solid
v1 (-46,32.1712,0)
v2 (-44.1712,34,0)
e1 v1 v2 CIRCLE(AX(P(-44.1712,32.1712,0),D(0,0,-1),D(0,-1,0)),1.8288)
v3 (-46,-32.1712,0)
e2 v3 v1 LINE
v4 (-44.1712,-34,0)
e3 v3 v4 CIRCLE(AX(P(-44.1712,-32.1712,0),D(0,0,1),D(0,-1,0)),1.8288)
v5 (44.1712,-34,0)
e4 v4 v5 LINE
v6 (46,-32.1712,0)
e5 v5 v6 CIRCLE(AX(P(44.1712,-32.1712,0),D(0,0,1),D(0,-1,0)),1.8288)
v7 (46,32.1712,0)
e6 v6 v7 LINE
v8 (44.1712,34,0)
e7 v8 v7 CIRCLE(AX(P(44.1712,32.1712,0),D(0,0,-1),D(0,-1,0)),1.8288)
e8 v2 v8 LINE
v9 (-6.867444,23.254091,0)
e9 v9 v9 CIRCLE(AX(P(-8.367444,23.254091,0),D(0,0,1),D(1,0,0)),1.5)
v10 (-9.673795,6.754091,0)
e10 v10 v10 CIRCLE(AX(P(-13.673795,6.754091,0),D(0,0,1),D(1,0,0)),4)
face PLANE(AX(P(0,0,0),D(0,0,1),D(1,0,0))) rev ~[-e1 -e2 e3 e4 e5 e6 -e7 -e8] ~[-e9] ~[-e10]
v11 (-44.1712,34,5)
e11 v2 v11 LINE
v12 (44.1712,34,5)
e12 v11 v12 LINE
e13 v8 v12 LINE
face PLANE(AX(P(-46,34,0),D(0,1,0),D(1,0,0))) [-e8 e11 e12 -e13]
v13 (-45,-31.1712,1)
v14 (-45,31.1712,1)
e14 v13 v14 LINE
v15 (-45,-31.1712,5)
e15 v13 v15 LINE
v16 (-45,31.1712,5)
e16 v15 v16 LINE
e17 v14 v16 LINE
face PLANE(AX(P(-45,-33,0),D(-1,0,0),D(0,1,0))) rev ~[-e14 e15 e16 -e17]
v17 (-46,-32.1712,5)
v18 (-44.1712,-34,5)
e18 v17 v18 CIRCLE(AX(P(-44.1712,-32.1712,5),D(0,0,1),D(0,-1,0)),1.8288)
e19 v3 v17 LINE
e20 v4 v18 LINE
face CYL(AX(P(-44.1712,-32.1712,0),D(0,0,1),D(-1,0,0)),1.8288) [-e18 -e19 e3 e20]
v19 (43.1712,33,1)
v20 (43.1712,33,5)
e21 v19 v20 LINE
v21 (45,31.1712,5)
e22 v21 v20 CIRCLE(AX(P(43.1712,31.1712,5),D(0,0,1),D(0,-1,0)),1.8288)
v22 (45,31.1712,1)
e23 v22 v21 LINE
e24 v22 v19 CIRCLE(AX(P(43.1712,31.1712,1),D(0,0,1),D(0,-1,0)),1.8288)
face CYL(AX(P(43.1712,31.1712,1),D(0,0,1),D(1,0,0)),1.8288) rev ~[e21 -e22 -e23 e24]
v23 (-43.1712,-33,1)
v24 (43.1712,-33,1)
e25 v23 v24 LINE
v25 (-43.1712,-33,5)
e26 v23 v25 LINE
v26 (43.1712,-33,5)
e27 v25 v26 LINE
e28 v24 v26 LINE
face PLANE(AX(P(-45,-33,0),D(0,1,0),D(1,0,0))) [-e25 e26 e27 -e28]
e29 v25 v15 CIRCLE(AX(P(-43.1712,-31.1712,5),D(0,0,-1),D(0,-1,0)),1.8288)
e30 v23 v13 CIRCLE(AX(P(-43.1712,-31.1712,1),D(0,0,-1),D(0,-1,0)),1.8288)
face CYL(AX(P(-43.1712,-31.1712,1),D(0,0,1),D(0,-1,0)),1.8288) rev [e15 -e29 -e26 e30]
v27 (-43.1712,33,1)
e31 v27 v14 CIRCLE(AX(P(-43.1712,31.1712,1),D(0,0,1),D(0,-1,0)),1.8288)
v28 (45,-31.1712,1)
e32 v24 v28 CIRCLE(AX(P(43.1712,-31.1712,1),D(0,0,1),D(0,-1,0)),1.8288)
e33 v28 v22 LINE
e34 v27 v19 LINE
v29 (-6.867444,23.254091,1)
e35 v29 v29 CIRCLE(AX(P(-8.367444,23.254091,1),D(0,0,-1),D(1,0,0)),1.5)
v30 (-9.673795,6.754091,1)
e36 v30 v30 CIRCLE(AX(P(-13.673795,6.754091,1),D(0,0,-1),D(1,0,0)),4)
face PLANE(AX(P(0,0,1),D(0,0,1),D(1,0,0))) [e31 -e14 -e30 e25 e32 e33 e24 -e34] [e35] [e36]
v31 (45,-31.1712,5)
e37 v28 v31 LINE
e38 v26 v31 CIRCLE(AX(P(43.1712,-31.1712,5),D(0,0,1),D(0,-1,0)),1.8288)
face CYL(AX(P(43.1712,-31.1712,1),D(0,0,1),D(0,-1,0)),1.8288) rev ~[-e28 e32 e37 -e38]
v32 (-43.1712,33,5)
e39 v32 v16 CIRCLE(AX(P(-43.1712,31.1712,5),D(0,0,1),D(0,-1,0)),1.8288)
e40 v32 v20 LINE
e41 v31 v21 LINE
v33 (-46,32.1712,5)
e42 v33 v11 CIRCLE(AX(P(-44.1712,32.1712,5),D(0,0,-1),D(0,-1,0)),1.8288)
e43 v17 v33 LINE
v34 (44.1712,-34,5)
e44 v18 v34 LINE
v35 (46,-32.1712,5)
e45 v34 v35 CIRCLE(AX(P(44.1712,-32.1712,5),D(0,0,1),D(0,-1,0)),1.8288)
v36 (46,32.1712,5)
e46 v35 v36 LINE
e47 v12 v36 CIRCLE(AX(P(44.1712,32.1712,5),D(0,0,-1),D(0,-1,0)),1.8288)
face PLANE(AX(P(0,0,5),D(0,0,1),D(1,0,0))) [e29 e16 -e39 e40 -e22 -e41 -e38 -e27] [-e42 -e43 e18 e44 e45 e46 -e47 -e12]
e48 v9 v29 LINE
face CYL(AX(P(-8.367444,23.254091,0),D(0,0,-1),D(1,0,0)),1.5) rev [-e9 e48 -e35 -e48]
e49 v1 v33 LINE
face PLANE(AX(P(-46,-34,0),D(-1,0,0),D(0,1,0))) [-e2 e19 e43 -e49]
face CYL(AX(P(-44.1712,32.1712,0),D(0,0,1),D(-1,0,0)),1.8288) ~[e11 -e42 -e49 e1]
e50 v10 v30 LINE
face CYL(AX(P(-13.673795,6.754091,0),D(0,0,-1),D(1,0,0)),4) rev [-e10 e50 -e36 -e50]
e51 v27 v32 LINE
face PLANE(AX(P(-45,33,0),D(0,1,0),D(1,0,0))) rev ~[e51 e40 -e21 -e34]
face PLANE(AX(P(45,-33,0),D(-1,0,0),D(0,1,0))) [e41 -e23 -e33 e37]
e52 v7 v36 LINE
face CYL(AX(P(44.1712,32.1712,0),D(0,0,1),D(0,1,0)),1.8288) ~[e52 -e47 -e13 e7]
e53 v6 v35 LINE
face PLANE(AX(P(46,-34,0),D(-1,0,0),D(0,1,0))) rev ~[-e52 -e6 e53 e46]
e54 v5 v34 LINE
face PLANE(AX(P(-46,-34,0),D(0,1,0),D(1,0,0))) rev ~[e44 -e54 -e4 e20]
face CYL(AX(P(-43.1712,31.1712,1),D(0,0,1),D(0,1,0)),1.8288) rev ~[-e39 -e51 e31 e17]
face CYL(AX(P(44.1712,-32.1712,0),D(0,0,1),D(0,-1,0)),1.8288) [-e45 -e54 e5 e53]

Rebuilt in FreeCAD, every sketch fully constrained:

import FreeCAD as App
import Part
import Sketcher
from FreeCAD import Vector


def edges_at(feature, points):
    """Names of the edges that pass closest to the given points."""
    edges = feature.Shape.Edges
    near = lambda p: min(range(len(edges)), key=lambda i: edges[i].distToShape(Part.Vertex(*p))[0])
    return sorted({f"Edge{near(p) + 1}" for p in points})

doc = App.newDocument("Part")
body = doc.addObject("PartDesign::Body", "Body")

sketch1 = body.newObject("Sketcher::SketchObject", "Sketch")
sketch1.AttachmentSupport = (doc.getObject("XY_Plane"), [""])
sketch1.MapMode = "FlatFace"
sketch1.addGeometry([
    Part.LineSegment(Vector(-46, 34, 0), Vector(-46, -34, 0)),
    Part.LineSegment(Vector(-46, -34, 0), Vector(46, -34, 0)),
    Part.LineSegment(Vector(46, -34, 0), Vector(46, 34, 0)),
    Part.LineSegment(Vector(46, 34, 0), Vector(-46, 34, 0)),
    Part.LineSegment(Vector(45, -33, 0), Vector(-45, -33, 0)),
    Part.LineSegment(Vector(-45, -33, 0), Vector(-45, 33, 0)),
    Part.LineSegment(Vector(-45, 33, 0), Vector(45, 33, 0)),
    Part.LineSegment(Vector(45, 33, 0), Vector(45, -33, 0)),
], False)
sketch1.addConstraint([
    Sketcher.Constraint("Coincident", 0, 2, 1, 1),
    Sketcher.Constraint("Coincident", 1, 2, 2, 1),
    Sketcher.Constraint("Coincident", 2, 2, 3, 1),
    Sketcher.Constraint("Coincident", 3, 2, 0, 1),
    Sketcher.Constraint("Coincident", 4, 2, 5, 1),
    Sketcher.Constraint("Coincident", 5, 2, 6, 1),
    Sketcher.Constraint("Coincident", 6, 2, 7, 1),
    Sketcher.Constraint("Coincident", 7, 2, 4, 1),
    Sketcher.Constraint("Vertical", 0),
    Sketcher.Constraint("Horizontal", 1),
    Sketcher.Constraint("Vertical", 2),
    Sketcher.Constraint("Horizontal", 3),
    Sketcher.Constraint("Horizontal", 4),
    Sketcher.Constraint("Vertical", 5),
    Sketcher.Constraint("Horizontal", 6),
    Sketcher.Constraint("Vertical", 7),
    Sketcher.Constraint("Symmetric", 0, 2, 2, 2, -1, 1),
    Sketcher.Constraint("Symmetric", 4, 2, 6, 2, -1, 1),
    Sketcher.Constraint("DistanceX", 1, 1, 1, 2, 92.0),
    Sketcher.Constraint("DistanceX", 4, 2, 4, 1, 90.0),
    Sketcher.Constraint("DistanceY", 0, 2, 0, 1, 68.0),
    Sketcher.Constraint("DistanceY", 5, 1, 5, 2, 66.0),
])
pad1 = body.newObject("PartDesign::Pad", "Pad")
pad1.Profile = sketch1
pad1.Length = 5

sketch2 = body.newObject("Sketcher::SketchObject", "Sketch001")
sketch2.AttachmentSupport = (doc.getObject("XY_Plane"), [""])
sketch2.MapMode = "FlatFace"
sketch2.addGeometry([
    Part.LineSegment(Vector(-45, 33, 0), Vector(-45, -33, 0)),
    Part.LineSegment(Vector(-45, -33, 0), Vector(45, -33, 0)),
    Part.LineSegment(Vector(45, -33, 0), Vector(45, 33, 0)),
    Part.LineSegment(Vector(45, 33, 0), Vector(-45, 33, 0)),
], False)
sketch2.addConstraint([
    Sketcher.Constraint("Coincident", 0, 2, 1, 1),
    Sketcher.Constraint("Coincident", 1, 2, 2, 1),
    Sketcher.Constraint("Coincident", 2, 2, 3, 1),
    Sketcher.Constraint("Coincident", 3, 2, 0, 1),
    Sketcher.Constraint("Vertical", 0),
    Sketcher.Constraint("Horizontal", 1),
    Sketcher.Constraint("Vertical", 2),
    Sketcher.Constraint("Horizontal", 3),
    Sketcher.Constraint("Symmetric", 0, 2, 2, 2, -1, 1),
    Sketcher.Constraint("DistanceX", 1, 1, 1, 2, 90.0),
    Sketcher.Constraint("DistanceY", 0, 2, 0, 1, 66.0),
])
pad2 = body.newObject("PartDesign::Pad", "Pad001")
pad2.Profile = sketch2
pad2.Length = 1

sketch3 = body.newObject("Sketcher::SketchObject", "Sketch002")
sketch3.AttachmentSupport = (doc.getObject("XY_Plane"), [""])
sketch3.MapMode = "FlatFace"
sketch3.addGeometry([
    Part.Circle(Vector(-13.7, 6.8, 0), Vector(0, 0, 1), 4),
    Part.Circle(Vector(-8.4, 23.3, 0), Vector(0, 0, 1), 1.5),
], False)
sketch3.addConstraint([
    Sketcher.Constraint("Diameter", 0, 8.0),
    Sketcher.Constraint("Diameter", 1, 3.0),
    Sketcher.Constraint("DistanceY", 0, 3, 1, 3, 16.5),
    Sketcher.Constraint("DistanceY", -1, 1, 0, 3, 6.754091),
    Sketcher.Constraint("DistanceX", 0, 3, 1, 3, 5.306351),
    Sketcher.Constraint("DistanceX", 0, 3, -1, 1, 13.673795),
])
pocket1 = body.newObject("PartDesign::Pocket", "Pocket")
pocket1.Profile = sketch3
pocket1.Length = 2.54
pocket1.Reversed = True
doc.recompute()

fillet = body.newObject("PartDesign::Fillet", "Fillet")
fillet.Base = (pocket1, edges_at(pocket1, [
    (-45, 33, 3),
    (45, 33, 3),
    (-45, -33, 3),
    (45, -33, 3),
    (46, -34, 2.5),
    (-46, -34, 2.5),
    (-46, 34, 2.5),
    (46, 34, 2.5),
]))
fillet.Radius = 1.8288

doc.recompute()
